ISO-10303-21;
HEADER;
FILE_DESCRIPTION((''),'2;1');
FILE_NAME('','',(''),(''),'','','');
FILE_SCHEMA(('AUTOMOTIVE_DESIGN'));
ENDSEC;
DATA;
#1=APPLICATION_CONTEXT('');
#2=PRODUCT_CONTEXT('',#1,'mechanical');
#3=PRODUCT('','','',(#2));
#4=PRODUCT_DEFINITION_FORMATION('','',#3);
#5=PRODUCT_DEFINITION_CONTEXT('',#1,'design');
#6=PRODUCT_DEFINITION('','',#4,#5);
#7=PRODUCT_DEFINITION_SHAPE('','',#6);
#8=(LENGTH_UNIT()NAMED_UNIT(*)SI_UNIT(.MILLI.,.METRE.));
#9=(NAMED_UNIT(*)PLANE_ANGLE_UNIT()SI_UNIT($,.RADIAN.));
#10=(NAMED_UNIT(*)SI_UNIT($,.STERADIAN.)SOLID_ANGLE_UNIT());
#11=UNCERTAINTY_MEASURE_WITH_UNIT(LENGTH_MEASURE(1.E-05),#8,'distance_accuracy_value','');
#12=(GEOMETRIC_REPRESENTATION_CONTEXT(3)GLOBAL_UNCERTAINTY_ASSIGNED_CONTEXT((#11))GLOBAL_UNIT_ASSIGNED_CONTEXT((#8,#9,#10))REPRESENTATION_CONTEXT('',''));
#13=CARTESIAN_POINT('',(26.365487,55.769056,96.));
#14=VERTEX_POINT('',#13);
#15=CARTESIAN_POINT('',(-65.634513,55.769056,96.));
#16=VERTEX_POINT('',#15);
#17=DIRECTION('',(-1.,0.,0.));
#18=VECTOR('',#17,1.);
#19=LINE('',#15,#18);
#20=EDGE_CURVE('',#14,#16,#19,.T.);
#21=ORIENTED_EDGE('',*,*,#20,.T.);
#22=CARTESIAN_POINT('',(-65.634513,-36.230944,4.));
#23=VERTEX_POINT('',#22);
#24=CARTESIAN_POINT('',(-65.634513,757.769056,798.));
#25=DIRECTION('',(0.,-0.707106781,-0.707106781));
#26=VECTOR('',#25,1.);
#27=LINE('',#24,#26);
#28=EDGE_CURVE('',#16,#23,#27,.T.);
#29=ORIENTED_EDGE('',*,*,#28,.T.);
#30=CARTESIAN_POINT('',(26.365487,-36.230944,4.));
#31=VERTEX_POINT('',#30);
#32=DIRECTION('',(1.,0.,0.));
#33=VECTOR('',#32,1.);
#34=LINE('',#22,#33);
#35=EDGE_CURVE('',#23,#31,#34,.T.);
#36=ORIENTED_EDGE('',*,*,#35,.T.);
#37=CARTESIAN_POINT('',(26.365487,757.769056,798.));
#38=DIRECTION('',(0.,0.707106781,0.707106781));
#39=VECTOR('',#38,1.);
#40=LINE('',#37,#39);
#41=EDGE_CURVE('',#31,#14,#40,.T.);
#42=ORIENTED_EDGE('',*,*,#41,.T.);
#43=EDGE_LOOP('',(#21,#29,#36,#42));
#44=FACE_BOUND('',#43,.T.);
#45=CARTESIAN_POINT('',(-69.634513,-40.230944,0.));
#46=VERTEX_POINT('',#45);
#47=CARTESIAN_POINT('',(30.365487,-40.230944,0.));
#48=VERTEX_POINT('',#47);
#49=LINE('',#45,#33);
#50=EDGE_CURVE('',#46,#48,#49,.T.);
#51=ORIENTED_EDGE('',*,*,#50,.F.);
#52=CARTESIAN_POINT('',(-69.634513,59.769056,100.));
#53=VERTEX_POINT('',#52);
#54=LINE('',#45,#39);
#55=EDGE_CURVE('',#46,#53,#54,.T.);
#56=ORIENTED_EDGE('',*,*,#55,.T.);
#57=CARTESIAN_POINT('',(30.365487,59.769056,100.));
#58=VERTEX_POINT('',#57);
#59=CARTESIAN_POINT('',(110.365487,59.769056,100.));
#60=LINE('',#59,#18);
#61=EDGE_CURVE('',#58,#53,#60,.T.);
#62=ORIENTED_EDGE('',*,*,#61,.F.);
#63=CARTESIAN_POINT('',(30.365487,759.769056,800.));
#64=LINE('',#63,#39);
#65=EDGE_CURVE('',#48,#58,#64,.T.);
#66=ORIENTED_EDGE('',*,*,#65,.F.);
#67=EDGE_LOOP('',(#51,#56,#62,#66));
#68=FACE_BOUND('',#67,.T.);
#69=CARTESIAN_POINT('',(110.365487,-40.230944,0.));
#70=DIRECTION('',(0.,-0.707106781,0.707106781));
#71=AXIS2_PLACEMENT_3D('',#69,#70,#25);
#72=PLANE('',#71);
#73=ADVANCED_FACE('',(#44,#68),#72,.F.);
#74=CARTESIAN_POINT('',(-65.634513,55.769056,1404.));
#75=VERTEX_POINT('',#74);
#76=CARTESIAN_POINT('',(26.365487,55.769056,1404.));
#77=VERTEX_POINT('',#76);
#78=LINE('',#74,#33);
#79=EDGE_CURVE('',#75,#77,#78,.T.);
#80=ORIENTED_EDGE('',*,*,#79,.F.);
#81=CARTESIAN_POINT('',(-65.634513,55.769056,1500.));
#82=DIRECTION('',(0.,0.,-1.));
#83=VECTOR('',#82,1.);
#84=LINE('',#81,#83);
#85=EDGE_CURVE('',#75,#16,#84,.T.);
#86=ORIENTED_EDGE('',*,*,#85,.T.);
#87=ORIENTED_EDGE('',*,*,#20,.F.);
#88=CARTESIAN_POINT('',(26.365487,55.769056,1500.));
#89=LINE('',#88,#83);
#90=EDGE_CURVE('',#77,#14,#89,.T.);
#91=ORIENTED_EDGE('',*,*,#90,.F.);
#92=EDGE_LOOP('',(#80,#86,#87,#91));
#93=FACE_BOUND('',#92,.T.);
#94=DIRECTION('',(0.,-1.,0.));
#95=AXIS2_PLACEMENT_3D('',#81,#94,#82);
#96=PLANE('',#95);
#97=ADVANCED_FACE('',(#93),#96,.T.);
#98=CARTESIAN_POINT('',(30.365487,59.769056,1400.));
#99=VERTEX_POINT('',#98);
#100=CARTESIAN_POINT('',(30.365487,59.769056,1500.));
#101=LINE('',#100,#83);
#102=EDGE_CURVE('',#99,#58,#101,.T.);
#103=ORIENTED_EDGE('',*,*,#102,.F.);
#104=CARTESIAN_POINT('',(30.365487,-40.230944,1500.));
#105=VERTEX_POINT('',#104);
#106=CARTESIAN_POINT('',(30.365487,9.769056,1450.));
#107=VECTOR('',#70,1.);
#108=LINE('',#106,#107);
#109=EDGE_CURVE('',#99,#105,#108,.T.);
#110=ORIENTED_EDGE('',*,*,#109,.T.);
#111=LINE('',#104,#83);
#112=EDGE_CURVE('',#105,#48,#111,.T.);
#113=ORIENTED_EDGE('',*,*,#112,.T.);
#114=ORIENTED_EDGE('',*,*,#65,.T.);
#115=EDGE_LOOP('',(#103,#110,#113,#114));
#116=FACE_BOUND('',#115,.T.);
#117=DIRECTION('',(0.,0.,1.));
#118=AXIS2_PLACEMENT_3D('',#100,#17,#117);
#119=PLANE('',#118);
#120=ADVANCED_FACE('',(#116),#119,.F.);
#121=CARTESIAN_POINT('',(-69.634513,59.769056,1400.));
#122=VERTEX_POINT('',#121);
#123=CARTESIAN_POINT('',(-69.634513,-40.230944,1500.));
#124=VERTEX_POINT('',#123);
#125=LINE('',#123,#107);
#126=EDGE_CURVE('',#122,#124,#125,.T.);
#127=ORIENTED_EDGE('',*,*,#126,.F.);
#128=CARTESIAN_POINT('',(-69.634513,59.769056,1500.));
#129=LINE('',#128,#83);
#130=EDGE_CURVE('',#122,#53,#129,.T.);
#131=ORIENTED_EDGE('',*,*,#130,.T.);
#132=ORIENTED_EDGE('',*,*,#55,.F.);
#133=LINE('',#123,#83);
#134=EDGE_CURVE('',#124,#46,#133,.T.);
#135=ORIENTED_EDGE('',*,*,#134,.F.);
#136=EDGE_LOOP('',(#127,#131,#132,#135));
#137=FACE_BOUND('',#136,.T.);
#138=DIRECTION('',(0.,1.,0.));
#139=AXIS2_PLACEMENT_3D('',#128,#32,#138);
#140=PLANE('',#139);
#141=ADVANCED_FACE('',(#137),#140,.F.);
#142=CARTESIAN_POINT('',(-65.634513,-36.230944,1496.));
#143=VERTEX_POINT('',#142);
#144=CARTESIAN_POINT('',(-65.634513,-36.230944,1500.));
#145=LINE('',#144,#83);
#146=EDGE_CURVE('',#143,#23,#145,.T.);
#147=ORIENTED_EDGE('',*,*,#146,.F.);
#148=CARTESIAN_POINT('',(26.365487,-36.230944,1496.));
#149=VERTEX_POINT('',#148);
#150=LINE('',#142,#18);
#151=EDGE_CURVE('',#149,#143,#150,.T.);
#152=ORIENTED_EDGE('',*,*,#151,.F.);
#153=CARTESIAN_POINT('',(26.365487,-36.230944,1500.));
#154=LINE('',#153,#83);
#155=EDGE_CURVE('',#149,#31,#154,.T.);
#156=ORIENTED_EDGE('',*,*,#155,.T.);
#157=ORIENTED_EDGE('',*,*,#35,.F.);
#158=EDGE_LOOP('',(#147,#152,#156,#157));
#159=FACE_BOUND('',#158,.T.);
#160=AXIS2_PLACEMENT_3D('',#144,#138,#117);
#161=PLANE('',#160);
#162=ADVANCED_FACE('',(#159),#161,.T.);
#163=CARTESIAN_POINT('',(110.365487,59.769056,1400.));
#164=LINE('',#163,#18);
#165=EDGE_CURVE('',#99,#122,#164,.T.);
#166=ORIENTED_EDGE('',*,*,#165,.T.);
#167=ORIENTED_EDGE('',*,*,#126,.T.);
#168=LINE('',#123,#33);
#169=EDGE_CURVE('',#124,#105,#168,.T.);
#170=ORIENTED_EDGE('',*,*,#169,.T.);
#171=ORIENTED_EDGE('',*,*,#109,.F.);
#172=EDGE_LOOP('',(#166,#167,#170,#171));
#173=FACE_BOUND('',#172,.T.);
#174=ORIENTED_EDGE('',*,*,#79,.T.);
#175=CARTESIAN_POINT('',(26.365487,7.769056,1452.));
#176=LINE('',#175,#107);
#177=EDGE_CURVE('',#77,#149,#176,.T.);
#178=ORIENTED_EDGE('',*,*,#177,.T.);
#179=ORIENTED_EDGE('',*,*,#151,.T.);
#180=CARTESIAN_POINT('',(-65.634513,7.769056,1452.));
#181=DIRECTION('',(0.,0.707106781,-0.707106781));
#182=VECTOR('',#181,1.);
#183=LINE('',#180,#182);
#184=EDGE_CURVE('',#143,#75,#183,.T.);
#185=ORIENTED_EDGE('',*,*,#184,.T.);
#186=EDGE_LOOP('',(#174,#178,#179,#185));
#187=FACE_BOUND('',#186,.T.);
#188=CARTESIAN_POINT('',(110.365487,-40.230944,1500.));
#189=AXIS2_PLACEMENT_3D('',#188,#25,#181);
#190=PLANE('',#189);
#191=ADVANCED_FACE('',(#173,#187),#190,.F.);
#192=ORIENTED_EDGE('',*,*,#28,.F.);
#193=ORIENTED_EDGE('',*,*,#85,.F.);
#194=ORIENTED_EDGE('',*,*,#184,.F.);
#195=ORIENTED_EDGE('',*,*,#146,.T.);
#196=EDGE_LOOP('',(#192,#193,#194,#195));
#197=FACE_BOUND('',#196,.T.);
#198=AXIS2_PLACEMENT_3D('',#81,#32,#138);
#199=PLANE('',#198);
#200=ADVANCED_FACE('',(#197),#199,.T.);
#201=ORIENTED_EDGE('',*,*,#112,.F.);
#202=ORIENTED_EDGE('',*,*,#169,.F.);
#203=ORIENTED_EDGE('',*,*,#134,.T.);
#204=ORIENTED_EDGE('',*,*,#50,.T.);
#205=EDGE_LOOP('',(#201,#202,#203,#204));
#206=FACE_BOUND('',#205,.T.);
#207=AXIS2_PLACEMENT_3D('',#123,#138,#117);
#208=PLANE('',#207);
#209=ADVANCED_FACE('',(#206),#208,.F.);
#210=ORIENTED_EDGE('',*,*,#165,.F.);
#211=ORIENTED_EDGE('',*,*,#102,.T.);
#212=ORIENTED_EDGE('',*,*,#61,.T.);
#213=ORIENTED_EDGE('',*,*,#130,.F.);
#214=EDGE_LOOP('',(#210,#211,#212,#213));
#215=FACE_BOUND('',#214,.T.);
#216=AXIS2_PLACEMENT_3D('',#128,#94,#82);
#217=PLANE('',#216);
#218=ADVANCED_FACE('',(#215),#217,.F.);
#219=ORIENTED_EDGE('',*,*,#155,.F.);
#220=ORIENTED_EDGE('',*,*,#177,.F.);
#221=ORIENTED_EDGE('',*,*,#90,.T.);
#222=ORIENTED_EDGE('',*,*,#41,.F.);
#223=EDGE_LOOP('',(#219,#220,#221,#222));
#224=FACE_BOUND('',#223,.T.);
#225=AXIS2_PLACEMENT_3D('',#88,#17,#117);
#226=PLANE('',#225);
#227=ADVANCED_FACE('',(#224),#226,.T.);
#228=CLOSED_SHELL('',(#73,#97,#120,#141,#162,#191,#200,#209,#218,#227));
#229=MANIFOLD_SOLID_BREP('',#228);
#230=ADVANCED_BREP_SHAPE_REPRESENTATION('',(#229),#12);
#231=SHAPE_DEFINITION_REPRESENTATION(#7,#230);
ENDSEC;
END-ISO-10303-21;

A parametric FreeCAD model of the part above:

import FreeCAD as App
import Part
import Sketcher

doc = App.newDocument("Part")
params = doc.addObject("Spreadsheet::Sheet", "Params")
for row, (alias, value) in enumerate([
    ("sketch1_width", "100 mm"),
    ("sketch1_width2", "92 mm"),
    ("pad1_length", "1500 mm"),
    ("sketch2_width", "100 mm"),
    ("pocket1_length", "180 mm"),
], start=1):
    params.set(f"A{row}", alias)
    params.set(f"B{row}", "=" + value)
    params.setAlias(f"B{row}", alias)

body = doc.addObject("PartDesign::Body", "Body")

sketch1 = doc.addObject("Sketcher::SketchObject", "Sketch")
body.addObject(sketch1)
sketch1.AttachmentSupport = (doc.XY_Plane, [""])
sketch1.MapMode = "FlatFace"
sketch1.addGeometry([
    Part.LineSegment(App.Vector(-70, 60, 0), App.Vector(-70, -40, 0)),
    Part.LineSegment(App.Vector(-70, -40, 0), App.Vector(30, -40, 0)),
    Part.LineSegment(App.Vector(30, -40, 0), App.Vector(30, 60, 0)),
    Part.LineSegment(App.Vector(30, 60, 0), App.Vector(-70, 60, 0)),
    Part.LineSegment(App.Vector(26, -36, 0), App.Vector(-66, -36, 0)),
    Part.LineSegment(App.Vector(-66, -36, 0), App.Vector(-66, 56, 0)),
    Part.LineSegment(App.Vector(-66, 56, 0), App.Vector(26, 56, 0)),
    Part.LineSegment(App.Vector(26, 56, 0), App.Vector(26, -36, 0)),
], False)
sketch1.addConstraint([
    Sketcher.Constraint("Coincident", 0, 2, 1, 1),
    Sketcher.Constraint("Coincident", 1, 2, 2, 1),
    Sketcher.Constraint("Coincident", 2, 2, 3, 1),
    Sketcher.Constraint("Coincident", 3, 2, 0, 1),
    Sketcher.Constraint("Coincident", 4, 2, 5, 1),
    Sketcher.Constraint("Coincident", 5, 2, 6, 1),
    Sketcher.Constraint("Coincident", 6, 2, 7, 1),
    Sketcher.Constraint("Coincident", 7, 2, 4, 1),
    Sketcher.Constraint("Vertical", 0),
    Sketcher.Constraint("Horizontal", 1),
    Sketcher.Constraint("Vertical", 2),
    Sketcher.Constraint("Horizontal", 3),
    Sketcher.Constraint("Horizontal", 4),
    Sketcher.Constraint("Vertical", 5),
    Sketcher.Constraint("Horizontal", 6),
    Sketcher.Constraint("Vertical", 7),
    Sketcher.Constraint("Equal", 3, 0),
    Sketcher.Constraint("Equal", 6, 5),
    Sketcher.Constraint("DistanceX", 1, 1, 1, 2, 100.0),
    Sketcher.Constraint("DistanceX", 4, 2, 4, 1, 92.0),
    Sketcher.Constraint("DistanceX", 0, 2, 4, 2, 4.0),
    Sketcher.Constraint("DistanceY", 0, 2, 4, 2, 4.0),
    Sketcher.Constraint("DistanceX", 0, 2, -1, 1, 69.634513),
    Sketcher.Constraint("DistanceY", 0, 2, -1, 1, 40.230944),
])
sketch1.setExpression("Constraints[18]", "Params.sketch1_width")
sketch1.setExpression("Constraints[19]", "Params.sketch1_width2")
pad1 = doc.addObject("PartDesign::Pad", "Pad")
body.addObject(pad1)
pad1.Profile = sketch1
pad1.setExpression("Length", "Params.pad1_length")

sketch2 = doc.addObject("Sketcher::SketchObject", "Sketch001")
body.addObject(sketch2)
sketch2.AttachmentSupport = (doc.YZ_Plane, [""])
sketch2.MapMode = "FlatFace"
sketch2.AttachmentOffset = App.Placement(App.Vector(0, 0, -69.634513), App.Rotation())
sketch2.addGeometry([
    Part.LineSegment(App.Vector(60, 1400, 0), App.Vector(-40, 1500, 0)),
    Part.LineSegment(App.Vector(-40, 1500, 0), App.Vector(60, 1500, 0)),
    Part.LineSegment(App.Vector(60, 1500, 0), App.Vector(60, 1400, 0)),
    Part.LineSegment(App.Vector(-40, 0, 0), App.Vector(60, 100, 0)),
    Part.LineSegment(App.Vector(60, 100, 0), App.Vector(60, 0, 0)),
    Part.LineSegment(App.Vector(60, 0, 0), App.Vector(-40, 0, 0)),
], False)
sketch2.addConstraint([
    Sketcher.Constraint("Coincident", 0, 2, 1, 1),
    Sketcher.Constraint("Coincident", 1, 2, 2, 1),
    Sketcher.Constraint("Coincident", 2, 2, 0, 1),
    Sketcher.Constraint("Coincident", 3, 2, 4, 1),
    Sketcher.Constraint("Coincident", 4, 2, 5, 1),
    Sketcher.Constraint("Coincident", 5, 2, 3, 1),
    Sketcher.Constraint("Horizontal", 1),
    Sketcher.Constraint("Vertical", 2),
    Sketcher.Constraint("Vertical", 4),
    Sketcher.Constraint("Horizontal", 5),
    Sketcher.Constraint("PointOnObject", 4, 2, -1),
    Sketcher.Constraint("Perpendicular", 0, 3),
    Sketcher.Constraint("Vertical", 2, 2, 3, 2),
    Sketcher.Constraint("Vertical", 0, 2, 5, 2),
    Sketcher.Constraint("Equal", 5, 2),
    Sketcher.Constraint("DistanceX", 1, 1, 1, 2, 100.0),
    Sketcher.Constraint("DistanceY", -1, 1, 0, 2, 1500.0),
    Sketcher.Constraint("DistanceX", 0, 2, -1, 1, 40.230944),
])
sketch2.setExpression("Constraints[15]", "Params.sketch2_width")
pocket1 = doc.addObject("PartDesign::Pocket", "Pocket")
body.addObject(pocket1)
pocket1.Profile = sketch2
pocket1.setExpression("Length", "Params.pocket1_length")
pocket1.Reversed = True

doc.recompute()
